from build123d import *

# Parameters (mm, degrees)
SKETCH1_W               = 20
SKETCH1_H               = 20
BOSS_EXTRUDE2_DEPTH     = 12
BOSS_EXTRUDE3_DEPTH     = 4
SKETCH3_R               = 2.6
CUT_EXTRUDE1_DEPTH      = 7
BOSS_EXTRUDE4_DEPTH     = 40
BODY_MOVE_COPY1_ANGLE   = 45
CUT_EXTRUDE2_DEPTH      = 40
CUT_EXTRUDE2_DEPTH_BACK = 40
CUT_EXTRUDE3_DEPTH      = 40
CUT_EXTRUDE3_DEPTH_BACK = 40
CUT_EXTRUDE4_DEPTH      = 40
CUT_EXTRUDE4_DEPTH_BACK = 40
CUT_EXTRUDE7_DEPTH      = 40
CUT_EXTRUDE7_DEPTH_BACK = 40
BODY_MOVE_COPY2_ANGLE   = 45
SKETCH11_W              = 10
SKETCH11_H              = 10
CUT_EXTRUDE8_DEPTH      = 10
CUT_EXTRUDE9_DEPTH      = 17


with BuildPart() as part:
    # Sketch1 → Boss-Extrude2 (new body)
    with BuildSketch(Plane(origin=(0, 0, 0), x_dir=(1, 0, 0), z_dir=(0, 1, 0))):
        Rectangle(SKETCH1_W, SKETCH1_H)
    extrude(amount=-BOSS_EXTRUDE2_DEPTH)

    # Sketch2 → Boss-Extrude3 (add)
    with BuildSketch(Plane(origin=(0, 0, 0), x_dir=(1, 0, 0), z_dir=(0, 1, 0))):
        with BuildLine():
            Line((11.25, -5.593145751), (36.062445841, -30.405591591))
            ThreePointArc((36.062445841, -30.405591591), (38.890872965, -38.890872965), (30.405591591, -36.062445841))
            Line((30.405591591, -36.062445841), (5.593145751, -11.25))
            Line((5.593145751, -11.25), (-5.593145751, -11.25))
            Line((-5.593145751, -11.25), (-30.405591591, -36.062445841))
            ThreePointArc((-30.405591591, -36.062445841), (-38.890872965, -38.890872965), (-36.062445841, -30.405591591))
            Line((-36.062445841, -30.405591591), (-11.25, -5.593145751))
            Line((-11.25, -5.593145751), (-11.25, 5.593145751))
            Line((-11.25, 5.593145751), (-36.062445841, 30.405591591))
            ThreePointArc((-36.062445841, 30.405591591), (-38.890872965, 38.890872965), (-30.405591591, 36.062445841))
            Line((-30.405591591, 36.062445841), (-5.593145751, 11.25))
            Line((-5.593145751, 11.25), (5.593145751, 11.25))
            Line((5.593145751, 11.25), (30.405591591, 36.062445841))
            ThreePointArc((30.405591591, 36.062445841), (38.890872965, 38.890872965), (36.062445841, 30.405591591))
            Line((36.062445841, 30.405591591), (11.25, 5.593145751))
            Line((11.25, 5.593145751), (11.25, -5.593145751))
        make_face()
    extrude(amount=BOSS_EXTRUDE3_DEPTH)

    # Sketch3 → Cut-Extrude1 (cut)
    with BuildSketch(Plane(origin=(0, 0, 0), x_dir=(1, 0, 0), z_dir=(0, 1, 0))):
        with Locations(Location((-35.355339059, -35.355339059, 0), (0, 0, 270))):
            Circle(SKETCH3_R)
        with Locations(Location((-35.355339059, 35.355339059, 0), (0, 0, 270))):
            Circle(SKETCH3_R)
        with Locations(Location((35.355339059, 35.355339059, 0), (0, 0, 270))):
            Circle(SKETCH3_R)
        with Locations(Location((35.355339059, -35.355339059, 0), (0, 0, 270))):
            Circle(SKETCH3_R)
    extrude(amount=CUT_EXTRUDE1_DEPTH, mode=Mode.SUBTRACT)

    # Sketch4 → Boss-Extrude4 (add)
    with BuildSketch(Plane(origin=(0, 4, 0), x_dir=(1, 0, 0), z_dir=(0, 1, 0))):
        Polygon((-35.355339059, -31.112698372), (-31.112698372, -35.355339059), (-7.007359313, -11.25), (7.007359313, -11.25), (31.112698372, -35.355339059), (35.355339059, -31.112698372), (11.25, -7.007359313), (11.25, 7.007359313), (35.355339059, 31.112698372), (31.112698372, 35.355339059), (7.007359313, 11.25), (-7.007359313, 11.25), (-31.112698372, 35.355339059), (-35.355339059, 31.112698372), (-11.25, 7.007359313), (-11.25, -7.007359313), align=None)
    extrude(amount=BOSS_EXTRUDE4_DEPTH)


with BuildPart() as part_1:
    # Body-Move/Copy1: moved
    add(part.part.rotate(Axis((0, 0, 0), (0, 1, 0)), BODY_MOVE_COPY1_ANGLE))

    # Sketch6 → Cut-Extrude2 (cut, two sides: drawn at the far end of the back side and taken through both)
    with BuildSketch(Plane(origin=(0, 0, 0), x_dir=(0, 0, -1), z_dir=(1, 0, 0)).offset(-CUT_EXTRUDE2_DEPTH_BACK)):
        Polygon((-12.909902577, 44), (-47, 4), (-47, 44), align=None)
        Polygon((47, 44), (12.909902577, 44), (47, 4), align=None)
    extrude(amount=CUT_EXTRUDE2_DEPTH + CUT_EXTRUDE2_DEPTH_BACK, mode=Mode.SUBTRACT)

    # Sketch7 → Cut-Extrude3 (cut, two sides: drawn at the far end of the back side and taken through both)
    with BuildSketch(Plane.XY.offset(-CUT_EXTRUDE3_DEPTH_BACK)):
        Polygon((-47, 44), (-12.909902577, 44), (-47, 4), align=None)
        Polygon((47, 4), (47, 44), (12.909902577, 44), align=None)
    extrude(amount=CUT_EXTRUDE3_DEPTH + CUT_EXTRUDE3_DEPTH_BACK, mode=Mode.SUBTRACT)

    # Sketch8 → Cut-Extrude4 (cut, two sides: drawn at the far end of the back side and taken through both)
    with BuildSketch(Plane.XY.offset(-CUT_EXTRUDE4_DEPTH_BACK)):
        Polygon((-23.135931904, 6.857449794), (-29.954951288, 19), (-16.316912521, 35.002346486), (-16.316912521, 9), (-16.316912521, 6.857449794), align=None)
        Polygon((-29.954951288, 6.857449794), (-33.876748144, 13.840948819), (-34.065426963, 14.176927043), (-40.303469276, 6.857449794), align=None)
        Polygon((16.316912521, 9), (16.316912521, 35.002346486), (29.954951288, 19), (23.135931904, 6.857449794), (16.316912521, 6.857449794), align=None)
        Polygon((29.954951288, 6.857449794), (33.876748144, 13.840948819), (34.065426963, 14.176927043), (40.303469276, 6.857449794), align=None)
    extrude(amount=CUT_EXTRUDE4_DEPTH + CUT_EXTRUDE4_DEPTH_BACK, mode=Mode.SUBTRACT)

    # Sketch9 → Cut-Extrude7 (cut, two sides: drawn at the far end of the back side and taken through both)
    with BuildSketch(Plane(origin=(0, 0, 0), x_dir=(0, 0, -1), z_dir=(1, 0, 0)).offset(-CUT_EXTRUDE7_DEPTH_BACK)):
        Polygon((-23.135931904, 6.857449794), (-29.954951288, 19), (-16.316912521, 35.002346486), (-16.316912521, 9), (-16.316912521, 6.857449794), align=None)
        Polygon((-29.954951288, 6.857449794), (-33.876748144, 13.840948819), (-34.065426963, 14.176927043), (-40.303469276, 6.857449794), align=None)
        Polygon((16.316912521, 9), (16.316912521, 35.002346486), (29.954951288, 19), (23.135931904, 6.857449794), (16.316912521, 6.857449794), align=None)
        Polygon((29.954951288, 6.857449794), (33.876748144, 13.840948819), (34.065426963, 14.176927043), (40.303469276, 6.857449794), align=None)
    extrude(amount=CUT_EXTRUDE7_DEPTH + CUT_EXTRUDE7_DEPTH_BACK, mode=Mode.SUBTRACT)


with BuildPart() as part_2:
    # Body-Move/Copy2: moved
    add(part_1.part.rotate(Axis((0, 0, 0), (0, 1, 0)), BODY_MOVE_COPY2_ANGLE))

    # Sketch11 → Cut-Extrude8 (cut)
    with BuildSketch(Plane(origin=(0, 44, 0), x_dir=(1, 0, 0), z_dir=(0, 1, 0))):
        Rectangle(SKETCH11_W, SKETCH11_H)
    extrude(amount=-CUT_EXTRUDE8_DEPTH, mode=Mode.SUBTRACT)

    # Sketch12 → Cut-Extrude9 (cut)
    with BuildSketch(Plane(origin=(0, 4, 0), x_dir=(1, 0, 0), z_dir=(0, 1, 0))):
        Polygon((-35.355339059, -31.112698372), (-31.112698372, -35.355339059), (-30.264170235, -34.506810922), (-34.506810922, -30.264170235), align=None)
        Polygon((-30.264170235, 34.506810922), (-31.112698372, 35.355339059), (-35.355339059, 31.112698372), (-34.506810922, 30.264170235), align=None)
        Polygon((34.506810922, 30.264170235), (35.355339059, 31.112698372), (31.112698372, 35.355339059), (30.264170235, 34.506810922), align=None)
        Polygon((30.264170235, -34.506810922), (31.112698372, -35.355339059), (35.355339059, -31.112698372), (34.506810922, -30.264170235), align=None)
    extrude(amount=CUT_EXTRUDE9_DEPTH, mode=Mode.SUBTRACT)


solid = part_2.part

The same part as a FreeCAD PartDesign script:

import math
import FreeCAD as App
import Part
import Sketcher
from FreeCAD import Vector


def add_polygon(sketch, points):
    """Adds a closed chain of lines whose ends are joined by coincident constraints."""
    first, n = sketch.GeometryCount, len(points)
    for a, b in zip(points, points[1:] + points[:1]):
        sketch.addGeometry(Part.LineSegment(App.Vector(*a, 0), App.Vector(*b, 0)), False)
    for i in range(n):
        sketch.addConstraint(Sketcher.Constraint("Coincident", first + i, 2, first + (i + 1) % n, 1))

doc = App.newDocument("Part")
body = doc.addObject("PartDesign::Body", "Body")

# Sketch on XZ plane
sketch1 = body.newObject("Sketcher::SketchObject", "Sketch")
sketch1.AttachmentSupport = (doc.getObject("XZ_Plane"), [""])
sketch1.MapMode = "FlatFace"
add_polygon(sketch1, [(-10, -10), (-10, 10), (10, 10), (10, -10)])  # lines 0-3
sketch1.addConstraint([
    Sketcher.Constraint("Vertical", 0),
    Sketcher.Constraint("Horizontal", 1),
    Sketcher.Constraint("Vertical", 2),
    Sketcher.Constraint("Horizontal", 3),
    Sketcher.Constraint("Symmetric", 0, 2, 2, 2, -1, 1),
    Sketcher.Constraint("Equal", 3, 0),
    Sketcher.Constraint("DistanceX", 1, 1, 1, 2, 20.0),
])
pad1 = body.newObject("PartDesign::Pad", "Pad")
pad1.Profile = sketch1
pad1.Length = 12

# Sketch on XZ plane
sketch2 = body.newObject("Sketcher::SketchObject", "Sketch001")
sketch2.AttachmentSupport = (doc.getObject("XZ_Plane"), [""])
sketch2.MapMode = "FlatFace"
sketch2.addGeometry([
    Part.LineSegment(Vector(36, 30, 0), Vector(11, 6, 0)),  # 0
    Part.LineSegment(Vector(11, 6, 0), Vector(11, -6, 0)),  # 1
    Part.LineSegment(Vector(11, -6, 0), Vector(36, -30, 0)),  # 2
    Part.ArcOfCircle(Part.Circle(Vector(35, -35, 0), Vector(0, 0, 1), 5), math.radians(-172), math.radians(82)),  # 3
    Part.LineSegment(Vector(30, -36, 0), Vector(6, -11, 0)),  # 4
    Part.LineSegment(Vector(6, -11, 0), Vector(-6, -11, 0)),  # 5
    Part.LineSegment(Vector(-6, -11, 0), Vector(-30, -36, 0)),  # 6
    Part.ArcOfCircle(Part.Circle(Vector(-35, -35, 0), Vector(0, 0, 1), 5), math.radians(98), math.radians(352)),  # 7
    Part.LineSegment(Vector(-36, -30, 0), Vector(-11, -6, 0)),  # 8
    Part.LineSegment(Vector(-11, -6, 0), Vector(-11, 6, 0)),  # 9
    Part.LineSegment(Vector(-11, 6, 0), Vector(-36, 30, 0)),  # 10
    Part.ArcOfCircle(Part.Circle(Vector(-35, 35, 0), Vector(0, 0, 1), 5), math.radians(8), math.radians(262)),  # 11
    Part.LineSegment(Vector(-30, 36, 0), Vector(-6, 11, 0)),  # 12
    Part.LineSegment(Vector(-6, 11, 0), Vector(6, 11, 0)),  # 13
    Part.LineSegment(Vector(6, 11, 0), Vector(30, 36, 0)),  # 14
    Part.ArcOfCircle(Part.Circle(Vector(35, 35, 0), Vector(0, 0, 1), 5), math.radians(-82), math.radians(172)),  # 15
], False)
sketch2.addConstraint([
    Sketcher.Constraint("Coincident", 0, 2, 1, 1),
    Sketcher.Constraint("Coincident", 1, 2, 2, 1),
    Sketcher.Constraint("Coincident", 2, 2, 3, 2),
    Sketcher.Constraint("Coincident", 3, 1, 4, 1),
    Sketcher.Constraint("Coincident", 4, 2, 5, 1),
    Sketcher.Constraint("Coincident", 5, 2, 6, 1),
    Sketcher.Constraint("Coincident", 6, 2, 7, 2),
    Sketcher.Constraint("Coincident", 7, 1, 8, 1),
    Sketcher.Constraint("Coincident", 8, 2, 9, 1),
    Sketcher.Constraint("Coincident", 9, 2, 10, 1),
    Sketcher.Constraint("Coincident", 10, 2, 11, 2),
    Sketcher.Constraint("Coincident", 11, 1, 12, 1),
    Sketcher.Constraint("Coincident", 12, 2, 13, 1),
    Sketcher.Constraint("Coincident", 13, 2, 14, 1),
    Sketcher.Constraint("Coincident", 14, 2, 15, 2),
    Sketcher.Constraint("Coincident", 15, 1, 0, 1),
    Sketcher.Constraint("Vertical", 1),
    Sketcher.Constraint("Horizontal", 5),
    Sketcher.Constraint("Vertical", 9),
    Sketcher.Constraint("Horizontal", 13),
    Sketcher.Constraint("Equal", 3, 7),
    Sketcher.Constraint("Equal", 7, 11),
    Sketcher.Constraint("Equal", 11, 15),
    Sketcher.Constraint("Symmetric", 3, 3, 11, 3, -1, 1),
    Sketcher.Constraint("Symmetric", 7, 3, 15, 3, -1, 1),
    Sketcher.Constraint("Symmetric", 0, 2, 8, 2, -1, 1),
    Sketcher.Constraint("Symmetric", 4, 2, 12, 2, -1, 1),
    Sketcher.Constraint("Symmetric", 3, 3, 7, 3, -2),
    Sketcher.Constraint("Perpendicular", 0, 2),
    Sketcher.Constraint("Parallel", 2, 4),
    Sketcher.Constraint("Perpendicular", 4, 6),
    Sketcher.Constraint("Parallel", 6, 8),
    Sketcher.Constraint("Perpendicular", 8, 10),
    Sketcher.Constraint("Parallel", 10, 12),
    Sketcher.Constraint("Perpendicular", 12, 14),
    Sketcher.Constraint("Horizontal", 3, 1, 6, 2),
    Sketcher.Constraint("Horizontal", 2, 2, 7, 1),
    Sketcher.Constraint("Horizontal", 1, 2, 8, 2),
    Sketcher.Constraint("Horizontal", 0, 2, 9, 2),
    Sketcher.Constraint("Horizontal", 11, 1, 14, 2),
    Sketcher.Constraint("Equal", 13, 1),
    Sketcher.Constraint("Equal", 2, 4),
    Sketcher.Constraint("Radius", 3, 5.0),
    Sketcher.Constraint("DistanceX", 8, 2, 1, 2, 22.5),
    Sketcher.Constraint("DistanceY", 5, 2, 12, 2, 22.5),
    Sketcher.Constraint("DistanceX", 5, 2, 5, 1, 11.186292),
    Sketcher.Constraint("DistanceY", 3, 1, 1, 2, 30.4693),
])
pad2 = body.newObject("PartDesign::Pad", "Pad001")
pad2.Profile = sketch2
pad2.Length = 4
pad2.Reversed = True

# Sketch on XZ plane
sketch3 = body.newObject("Sketcher::SketchObject", "Sketch002")
sketch3.AttachmentSupport = (doc.getObject("XZ_Plane"), [""])
sketch3.MapMode = "FlatFace"
sketch3.addGeometry([
    Part.Circle(Vector(-35.4, 35.4, 0), Vector(0, 0, 1), 2.6),
    Part.Circle(Vector(-35.4, -35.4, 0), Vector(0, 0, 1), 2.6),
    Part.Circle(Vector(35.4, -35.4, 0), Vector(0, 0, 1), 2.6),
    Part.Circle(Vector(35.4, 35.4, 0), Vector(0, 0, 1), 2.6),
], False)
sketch3.addConstraint([
    Sketcher.Constraint("Equal", 0, 1),
    Sketcher.Constraint("Equal", 1, 2),
    Sketcher.Constraint("Equal", 2, 3),
    Sketcher.Constraint("Symmetric", 0, 3, 2, 3, -1, 1),
    Sketcher.Constraint("Symmetric", 1, 3, 3, 3, -1, 1),
    Sketcher.Constraint("Symmetric", 1, 3, 2, 3, -2),
    Sketcher.Constraint("Diameter", 0, 5.2),
    Sketcher.Constraint("DistanceX", 0, 3, -1, 1, 35.355339),
    Sketcher.Constraint("DistanceY", -1, 1, 0, 3, 35.355339),
])
pocket1 = body.newObject("PartDesign::Pocket", "Pocket")
pocket1.Profile = sketch3
pocket1.Length = 7

# Sketch on XZ plane
sketch4 = body.newObject("Sketcher::SketchObject", "Sketch003")
sketch4.AttachmentSupport = (doc.getObject("XZ_Plane"), [""])
sketch4.MapMode = "FlatFace"
sketch4.AttachmentOffset = App.Placement(Vector(0, 0, -4), App.Rotation())
add_polygon(sketch4, [(-35, 31), (-31, 35), (-7, 11), (7, 11), (31, 35), (35, 31), (11, 7), (11, -7), (35, -31), (31, -35), (7, -11), (-7, -11), (-31, -35), (-35, -31), (-11, -7), (-11, 7)])  # lines 0-15
sketch4.addConstraint([
    Sketcher.Constraint("Horizontal", 2),
    Sketcher.Constraint("Vertical", 6),
    Sketcher.Constraint("Horizontal", 10),
    Sketcher.Constraint("Vertical", 14),
    Sketcher.Constraint("Symmetric", 0, 2, 8, 2, -1, 1),
    Sketcher.Constraint("Symmetric", 1, 2, 9, 2, -1, 1),
    Sketcher.Constraint("Symmetric", 3, 2, 11, 2, -1, 1),
    Sketcher.Constraint("Symmetric", 4, 2, 12, 2, -1, 1),
    Sketcher.Constraint("Symmetric", 5, 2, 13, 2, -1, 1),
    Sketcher.Constraint("Symmetric", 7, 2, 15, 2, -1, 1),
    Sketcher.Constraint("Symmetric", 0, 2, 3, 2, -2),
    Sketcher.Constraint("Symmetric", 7, 2, 12, 2, -2),
    Sketcher.Constraint("Perpendicular", 0, 1),
    Sketcher.Constraint("Perpendicular", 1, 3),
    Sketcher.Constraint("Perpendicular", 3, 4),
    Sketcher.Constraint("Perpendicular", 4, 5),
    Sketcher.Constraint("Perpendicular", 5, 7),
    Sketcher.Constraint("Perpendicular", 9, 11),
    Sketcher.Constraint("Perpendicular", 13, 15),
    Sketcher.Constraint("Equal", 10, 6),
    Sketcher.Constraint("Equal", 3, 5),
    Sketcher.Constraint("Distance", 0, 6.0),
    Sketcher.Constraint("DistanceY", 9, 2, 2, 2, 22.5),
    Sketcher.Constraint("DistanceX", 0, 2, -1, 1, 31.112698),
])
pad3 = body.newObject("PartDesign::Pad", "Pad002")
pad3.Profile = sketch4
pad3.Length = 40
pad3.Reversed = True
body2 = doc.addObject("PartDesign::Body", "Body001")
doc.recompute()

body.Placement = App.Placement(Vector(0, 0, 0), App.Rotation(Vector(0, 1, 0), 45))
boolean = body2.newObject("PartDesign::Boolean", "Boolean")
boolean.Type = "Fuse"
boolean.addObjects([body])

# Sketch on YZ plane
sketch5 = body2.newObject("Sketcher::SketchObject", "Sketch004")
sketch5.AttachmentSupport = (doc.getObject("YZ_Plane001"), [""])
sketch5.MapMode = "FlatFace"
add_polygon(sketch5, [(4, 47), (44, 13), (44, 47)])  # lines 0-2
add_polygon(sketch5, [(44, -47), (44, -13), (4, -47)])  # lines 3-5
sketch5.addConstraint([
    Sketcher.Constraint("Vertical", 1),
    Sketcher.Constraint("Horizontal", 2),
    Sketcher.Constraint("Vertical", 3),
    Sketcher.Constraint("Horizontal", 5),
    Sketcher.Constraint("Symmetric", 0, 2, 3, 2, -1),
    Sketcher.Constraint("Symmetric", 2, 2, 4, 2, -1),
    Sketcher.Constraint("DistanceX", 2, 2, 2, 1, 40.0),
    Sketcher.Constraint("DistanceX", -1, 1, 0, 2, 44.0),
    Sketcher.Constraint("DistanceY", -1, 1, 1, 2, 47.0),
    Sketcher.Constraint("DistanceY", 1, 1, 1, 2, 34.090097),
])
pocket2 = body2.newObject("PartDesign::Pocket", "Pocket001")
pocket2.Profile = sketch5
pocket2.Type = "ThroughAll"
pocket2.Midplane = True

# Sketch on XY plane
sketch6 = body2.newObject("Sketcher::SketchObject", "Sketch005")
sketch6.AttachmentSupport = (doc.getObject("XY_Plane001"), [""])
sketch6.MapMode = "FlatFace"
add_polygon(sketch6, [(-13, 44), (-47, 44), (-47, 4)])  # lines 0-2
add_polygon(sketch6, [(47, 4), (47, 44), (13, 44)])  # lines 3-5
sketch6.addConstraint([
    Sketcher.Constraint("Horizontal", 0),
    Sketcher.Constraint("Vertical", 1),
    Sketcher.Constraint("Vertical", 3),
    Sketcher.Constraint("Horizontal", 4),
    Sketcher.Constraint("Symmetric", 0, 2, 3, 2, -2),
    Sketcher.Constraint("Horizontal", 1, 2, 5, 2),
    Sketcher.Constraint("Equal", 0, 4),
    Sketcher.Constraint("DistanceY", 1, 2, 1, 1, 40.0),
    Sketcher.Constraint("DistanceX", 0, 2, -1, 1, 47.0),
    Sketcher.Constraint("DistanceY", -1, 1, 0, 2, 44.0),
    Sketcher.Constraint("DistanceX", 0, 2, 0, 1, 34.090097),
])
pocket3 = body2.newObject("PartDesign::Pocket", "Pocket002")
pocket3.Profile = sketch6
pocket3.Type = "ThroughAll"
pocket3.Midplane = True

# Sketch on XY plane
sketch7 = body2.newObject("Sketcher::SketchObject", "Sketch006")
sketch7.AttachmentSupport = (doc.getObject("XY_Plane001"), [""])
sketch7.MapMode = "FlatFace"
add_polygon(sketch7, [(-29.95, 19), (-23.14, 6.86), (-16.32, 6.86), (-16.32, 35)])  # lines 0-3
add_polygon(sketch7, [(-29.95, 6.86), (-33.88, 13.84), (-34.07, 14.18), (-40.3, 6.86)])  # lines 4-7
add_polygon(sketch7, [(16.32, 35), (16.32, 6.86), (23.14, 6.86), (29.95, 19)])  # lines 8-11
add_polygon(sketch7, [(33.88, 13.84), (29.95, 6.86), (40.3, 6.86), (34.07, 14.18)])  # lines 12-15
sketch7.addConstraint([
    Sketcher.Constraint("Horizontal", 1),
    Sketcher.Constraint("Vertical", 2),
    Sketcher.Constraint("Horizontal", 7),
    Sketcher.Constraint("Vertical", 8),
    Sketcher.Constraint("Horizontal", 9),
    Sketcher.Constraint("Horizontal", 13),
    Sketcher.Constraint("Symmetric", 1, 2, 8, 2, -2),
    Sketcher.Constraint("Symmetric", 3, 2, 10, 2, -2),
    Sketcher.Constraint("Symmetric", 7, 2, 12, 2, -2),
    Sketcher.Constraint("Symmetric", 5, 2, 14, 2, -2),
    Sketcher.Constraint("Symmetric", 4, 2, 15, 2, -2),
    Sketcher.Constraint("Parallel", 0, 4),
    Sketcher.Constraint("Parallel", 4, 5),
    Sketcher.Constraint("Parallel", 3, 6),
    Sketcher.Constraint("Parallel", 10, 12),
    Sketcher.Constraint("Parallel", 11, 14),
    Sketcher.Constraint("Horizontal", 1, 2, 6, 2),
    Sketcher.Constraint("Horizontal", 2, 2, 11, 2),
    Sketcher.Constraint("Vertical", 3, 2, 7, 2),
    Sketcher.Constraint("DistanceY", -1, 1, 3, 2, 19.0),
    Sketcher.Constraint("DistanceX", 1, 1, 1, 2, 6.819019),
    Sketcher.Constraint("DistanceY", 0, 2, 4, 2, 6.983499),
    Sketcher.Constraint("Distance", 3, 21.025489),
    Sketcher.Constraint("DistanceX", 7, 1, 7, 2, 10.348518),
    Sketcher.Constraint("DistanceY", 2, 1, 2, 2, 28.144897),
    Sketcher.Constraint("DistanceX", 0, 2, -1, 1, 23.135932),
    Sketcher.Constraint("DistanceY", -1, 1, 0, 2, 6.85745),
])
pocket4 = body2.newObject("PartDesign::Pocket", "Pocket003")
pocket4.Profile = sketch7
pocket4.Type = "ThroughAll"
pocket4.Midplane = True

# Sketch on YZ plane
sketch8 = body2.newObject("Sketcher::SketchObject", "Sketch007")
sketch8.AttachmentSupport = (doc.getObject("YZ_Plane001"), [""])
sketch8.MapMode = "FlatFace"
add_polygon(sketch8, [(19, 29.95), (6.86, 23.14), (6.86, 16.32), (35, 16.32)])  # lines 0-3
add_polygon(sketch8, [(6.86, 29.95), (13.84, 33.88), (14.18, 34.07), (6.86, 40.3)])  # lines 4-7
add_polygon(sketch8, [(35, -16.32), (6.86, -16.32), (6.86, -23.14), (19, -29.95)])  # lines 8-11
add_polygon(sketch8, [(13.84, -33.88), (6.86, -29.95), (6.86, -40.3), (14.18, -34.07)])  # lines 12-15
sketch8.addConstraint([
    Sketcher.Constraint("Vertical", 1),
    Sketcher.Constraint("Horizontal", 2),
    Sketcher.Constraint("Vertical", 7),
    Sketcher.Constraint("Horizontal", 8),
    Sketcher.Constraint("Vertical", 9),
    Sketcher.Constraint("Vertical", 13),
    Sketcher.Constraint("Symmetric", 1, 2, 8, 2, -1),
    Sketcher.Constraint("Symmetric", 3, 2, 10, 2, -1),
    Sketcher.Constraint("Symmetric", 7, 2, 12, 2, -1),
    Sketcher.Constraint("Symmetric", 5, 2, 14, 2, -1),
    Sketcher.Constraint("Symmetric", 4, 2, 15, 2, -1),
    Sketcher.Constraint("Parallel", 0, 4),
    Sketcher.Constraint("Parallel", 4, 5),
    Sketcher.Constraint("Parallel", 3, 6),
    Sketcher.Constraint("Parallel", 10, 12),
    Sketcher.Constraint("Parallel", 11, 14),
    Sketcher.Constraint("Horizontal", 3, 2, 7, 2),
    Sketcher.Constraint("Vertical", 1, 2, 6, 2),
    Sketcher.Constraint("Vertical", 2, 2, 11, 2),
    Sketcher.Constraint("DistanceX", -1, 1, 3, 2, 19.0),
    Sketcher.Constraint("DistanceY", 1, 2, 1, 1, 6.819019),
    Sketcher.Constraint("DistanceX", 0, 2, 4, 2, 6.983499),
    Sketcher.Constraint("Distance", 3, 21.025489),
    Sketcher.Constraint("DistanceX", 2, 1, 2, 2, 28.144897),
    Sketcher.Constraint("DistanceY", 7, 2, 7, 1, 10.348518),
    Sketcher.Constraint("DistanceX", -1, 1, 0, 2, 6.85745),
    Sketcher.Constraint("DistanceY", -1, 1, 0, 2, 23.135932),
])
pocket5 = body2.newObject("PartDesign::Pocket", "Pocket004")
pocket5.Profile = sketch8
pocket5.Type = "ThroughAll"
pocket5.Midplane = True
body3 = doc.addObject("PartDesign::Body", "Body002")
doc.recompute()

body2.Placement = App.Placement(Vector(0, 0, 0), App.Rotation(Vector(0, 1, 0), 45))
boolean2 = body3.newObject("PartDesign::Boolean", "Boolean001")
boolean2.Type = "Fuse"
boolean2.addObjects([body2])

# Sketch on XZ plane
sketch9 = body3.newObject("Sketcher::SketchObject", "Sketch008")
sketch9.AttachmentSupport = (doc.getObject("XZ_Plane002"), [""])
sketch9.MapMode = "FlatFace"
sketch9.AttachmentOffset = App.Placement(Vector(0, 0, -44), App.Rotation())
add_polygon(sketch9, [(-5, -5), (-5, 5), (5, 5), (5, -5)])  # lines 0-3
sketch9.addConstraint([
    Sketcher.Constraint("Vertical", 0),
    Sketcher.Constraint("Horizontal", 1),
    Sketcher.Constraint("Vertical", 2),
    Sketcher.Constraint("Horizontal", 3),
    Sketcher.Constraint("Symmetric", 0, 2, 2, 2, -1, 1),
    Sketcher.Constraint("Equal", 3, 0),
    Sketcher.Constraint("DistanceX", 1, 1, 1, 2, 10.0),
])
pocket6 = body3.newObject("PartDesign::Pocket", "Pocket005")
pocket6.Profile = sketch9
pocket6.Length = 10
pocket6.Reversed = True

# Sketch on XZ plane
sketch10 = body3.newObject("Sketcher::SketchObject", "Sketch009")
sketch10.AttachmentSupport = (doc.getObject("XZ_Plane002"), [""])
sketch10.MapMode = "FlatFace"
sketch10.AttachmentOffset = App.Placement(Vector(0, 0, -4), App.Rotation())
add_polygon(sketch10, [(-35.4, 31.1), (-31.1, 35.4), (-30.3, 34.5), (-34.5, 30.3)])  # lines 0-3
add_polygon(sketch10, [(-30.3, -34.5), (-31.1, -35.4), (-35.4, -31.1), (-34.5, -30.3)])  # lines 4-7
add_polygon(sketch10, [(34.5, -30.3), (35.4, -31.1), (31.1, -35.4), (30.3, -34.5)])  # lines 8-11
add_polygon(sketch10, [(30.3, 34.5), (31.1, 35.4), (35.4, 31.1), (34.5, 30.3)])  # lines 12-15
sketch10.addConstraint([
    Sketcher.Constraint("Symmetric", 3, 2, 8, 2, -1, 1),
    Sketcher.Constraint("Symmetric", 0, 2, 9, 2, -1, 1),
    Sketcher.Constraint("Symmetric", 1, 2, 10, 2, -1, 1),
    Sketcher.Constraint("Symmetric", 2, 2, 11, 2, -1, 1),
    Sketcher.Constraint("Symmetric", 4, 2, 12, 2, -1, 1),
    Sketcher.Constraint("Symmetric", 5, 2, 13, 2, -1, 1),
    Sketcher.Constraint("Symmetric", 6, 2, 14, 2, -1, 1),
    Sketcher.Constraint("Symmetric", 7, 2, 15, 2, -1, 1),
    Sketcher.Constraint("Symmetric", 5, 2, 8, 2, -2),
    Sketcher.Constraint("Symmetric", 4, 2, 9, 2, -2),
    Sketcher.Constraint("Symmetric", 7, 2, 10, 2, -2),
    Sketcher.Constraint("Symmetric", 6, 2, 11, 2, -2),
    Sketcher.Constraint("Perpendicular", 0, 1),
    Sketcher.Constraint("Perpendicular", 1, 2),
    Sketcher.Constraint("Perpendicular", 2, 3),
    Sketcher.Constraint("Perpendicular", 3, 4),
    Sketcher.Constraint("Distance", 0, 6.0),
    Sketcher.Constraint("Distance", 1, 1.2),
    Sketcher.Constraint("DistanceX", 0, 2, -1, 1, 31.112698),
    Sketcher.Constraint("DistanceY", -1, 1, 3, 2, 31.112698),
])
pocket7 = body3.newObject("PartDesign::Pocket", "Pocket006")
pocket7.Profile = sketch10
pocket7.Length = 17

doc.recompute()
